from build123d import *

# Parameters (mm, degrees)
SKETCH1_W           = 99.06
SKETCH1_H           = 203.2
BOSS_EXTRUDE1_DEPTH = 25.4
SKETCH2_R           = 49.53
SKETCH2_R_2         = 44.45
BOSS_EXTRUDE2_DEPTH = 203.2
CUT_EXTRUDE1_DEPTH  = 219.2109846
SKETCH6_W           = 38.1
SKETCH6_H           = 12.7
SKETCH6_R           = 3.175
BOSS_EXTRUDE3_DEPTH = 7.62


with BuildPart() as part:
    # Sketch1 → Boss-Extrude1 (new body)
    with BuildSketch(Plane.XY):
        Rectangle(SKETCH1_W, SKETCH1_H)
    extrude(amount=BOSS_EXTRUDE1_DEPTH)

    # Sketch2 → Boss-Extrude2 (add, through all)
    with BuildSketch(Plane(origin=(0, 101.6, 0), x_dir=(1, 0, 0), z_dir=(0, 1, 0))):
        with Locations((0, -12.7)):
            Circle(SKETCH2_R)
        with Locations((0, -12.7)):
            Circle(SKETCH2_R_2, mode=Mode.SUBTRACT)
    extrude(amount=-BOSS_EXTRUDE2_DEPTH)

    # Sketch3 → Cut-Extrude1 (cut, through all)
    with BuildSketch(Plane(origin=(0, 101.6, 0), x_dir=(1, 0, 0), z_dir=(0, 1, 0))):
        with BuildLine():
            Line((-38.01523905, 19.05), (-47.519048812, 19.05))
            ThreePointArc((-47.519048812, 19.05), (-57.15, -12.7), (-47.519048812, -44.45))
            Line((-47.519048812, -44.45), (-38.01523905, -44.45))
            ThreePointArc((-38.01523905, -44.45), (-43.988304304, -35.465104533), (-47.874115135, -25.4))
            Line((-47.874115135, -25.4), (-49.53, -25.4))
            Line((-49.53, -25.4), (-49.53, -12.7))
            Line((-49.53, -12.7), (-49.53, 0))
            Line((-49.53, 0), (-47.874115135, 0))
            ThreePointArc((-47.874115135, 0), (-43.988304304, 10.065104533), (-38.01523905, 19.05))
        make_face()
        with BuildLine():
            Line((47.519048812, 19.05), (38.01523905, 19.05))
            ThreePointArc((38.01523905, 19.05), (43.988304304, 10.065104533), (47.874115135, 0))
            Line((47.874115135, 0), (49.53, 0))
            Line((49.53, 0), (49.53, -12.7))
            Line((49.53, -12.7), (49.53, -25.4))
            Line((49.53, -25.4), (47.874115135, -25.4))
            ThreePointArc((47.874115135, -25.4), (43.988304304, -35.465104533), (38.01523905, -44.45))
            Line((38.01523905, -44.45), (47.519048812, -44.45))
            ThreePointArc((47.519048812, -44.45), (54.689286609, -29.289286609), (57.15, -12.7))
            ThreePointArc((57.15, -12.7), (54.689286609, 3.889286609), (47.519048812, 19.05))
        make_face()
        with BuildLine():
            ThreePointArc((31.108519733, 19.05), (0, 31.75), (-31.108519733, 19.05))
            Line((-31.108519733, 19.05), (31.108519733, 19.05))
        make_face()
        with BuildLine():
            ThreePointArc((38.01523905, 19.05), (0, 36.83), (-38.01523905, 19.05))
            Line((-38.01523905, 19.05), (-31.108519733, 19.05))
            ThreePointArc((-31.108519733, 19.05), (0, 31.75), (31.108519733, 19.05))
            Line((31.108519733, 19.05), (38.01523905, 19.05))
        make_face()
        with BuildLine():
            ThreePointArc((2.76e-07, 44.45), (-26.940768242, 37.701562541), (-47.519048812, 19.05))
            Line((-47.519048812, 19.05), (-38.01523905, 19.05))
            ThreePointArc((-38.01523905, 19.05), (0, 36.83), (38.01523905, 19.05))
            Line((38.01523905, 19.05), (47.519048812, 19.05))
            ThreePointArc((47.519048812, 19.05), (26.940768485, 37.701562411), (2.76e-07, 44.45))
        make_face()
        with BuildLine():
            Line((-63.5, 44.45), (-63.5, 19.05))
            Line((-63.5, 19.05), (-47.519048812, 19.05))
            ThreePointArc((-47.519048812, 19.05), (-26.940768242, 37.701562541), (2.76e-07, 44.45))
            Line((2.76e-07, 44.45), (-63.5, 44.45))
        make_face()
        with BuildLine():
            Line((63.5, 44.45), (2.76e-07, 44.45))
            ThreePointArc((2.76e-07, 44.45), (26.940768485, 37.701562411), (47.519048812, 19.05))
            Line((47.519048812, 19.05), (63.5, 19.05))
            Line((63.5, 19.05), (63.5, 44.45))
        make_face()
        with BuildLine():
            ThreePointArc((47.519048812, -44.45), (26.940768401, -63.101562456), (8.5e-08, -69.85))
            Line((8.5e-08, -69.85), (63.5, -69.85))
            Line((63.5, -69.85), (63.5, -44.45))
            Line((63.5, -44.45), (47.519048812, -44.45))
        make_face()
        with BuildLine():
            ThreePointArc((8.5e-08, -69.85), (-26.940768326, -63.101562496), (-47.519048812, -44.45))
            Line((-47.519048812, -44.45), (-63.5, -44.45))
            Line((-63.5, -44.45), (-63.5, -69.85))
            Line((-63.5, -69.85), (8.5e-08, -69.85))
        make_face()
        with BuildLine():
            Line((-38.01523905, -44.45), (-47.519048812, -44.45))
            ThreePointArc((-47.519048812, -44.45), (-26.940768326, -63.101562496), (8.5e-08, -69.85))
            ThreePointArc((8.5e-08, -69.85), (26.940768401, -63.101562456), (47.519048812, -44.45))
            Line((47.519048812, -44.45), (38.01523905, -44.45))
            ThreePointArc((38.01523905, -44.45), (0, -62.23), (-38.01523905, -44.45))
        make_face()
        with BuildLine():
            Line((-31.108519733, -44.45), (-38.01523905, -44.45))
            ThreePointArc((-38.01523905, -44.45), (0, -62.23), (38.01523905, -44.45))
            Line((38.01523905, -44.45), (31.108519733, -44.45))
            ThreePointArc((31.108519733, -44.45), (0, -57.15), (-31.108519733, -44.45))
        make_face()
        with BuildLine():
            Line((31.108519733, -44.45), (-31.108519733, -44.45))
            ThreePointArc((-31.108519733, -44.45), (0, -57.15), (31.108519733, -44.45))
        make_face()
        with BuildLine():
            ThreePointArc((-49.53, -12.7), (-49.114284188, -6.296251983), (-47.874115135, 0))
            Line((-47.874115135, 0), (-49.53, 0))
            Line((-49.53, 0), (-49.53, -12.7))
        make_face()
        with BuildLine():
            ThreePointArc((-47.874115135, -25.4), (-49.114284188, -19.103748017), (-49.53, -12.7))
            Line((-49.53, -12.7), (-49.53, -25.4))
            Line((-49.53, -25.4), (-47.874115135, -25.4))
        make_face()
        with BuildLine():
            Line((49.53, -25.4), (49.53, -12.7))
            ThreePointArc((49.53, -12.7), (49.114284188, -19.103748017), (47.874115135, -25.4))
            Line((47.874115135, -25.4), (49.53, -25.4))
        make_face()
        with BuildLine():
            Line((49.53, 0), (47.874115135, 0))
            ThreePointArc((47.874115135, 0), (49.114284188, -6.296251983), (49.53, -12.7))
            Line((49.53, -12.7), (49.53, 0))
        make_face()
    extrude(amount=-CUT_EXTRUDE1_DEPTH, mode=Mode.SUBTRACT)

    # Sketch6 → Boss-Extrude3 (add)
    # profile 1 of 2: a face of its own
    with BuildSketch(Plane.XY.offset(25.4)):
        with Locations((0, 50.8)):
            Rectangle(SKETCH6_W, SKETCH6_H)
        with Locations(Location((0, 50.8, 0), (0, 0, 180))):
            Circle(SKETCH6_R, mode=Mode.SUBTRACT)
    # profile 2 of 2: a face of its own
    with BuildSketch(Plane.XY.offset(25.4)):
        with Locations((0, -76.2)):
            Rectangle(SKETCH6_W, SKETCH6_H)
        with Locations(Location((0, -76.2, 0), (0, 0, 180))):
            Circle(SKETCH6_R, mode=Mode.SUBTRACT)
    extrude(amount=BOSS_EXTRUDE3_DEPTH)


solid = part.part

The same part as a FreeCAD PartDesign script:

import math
import FreeCAD as App
import Part
import Sketcher
from FreeCAD import Vector
Q = App.Units.Quantity

doc = App.newDocument("Part")
body = doc.addObject("PartDesign::Body", "Body")

# Sketch on XY plane
sketch1 = doc.addObject("Sketcher::SketchObject", "Sketch")
body.addObject(sketch1)
sketch1.AttachmentSupport = (doc.XY_Plane, [""])
sketch1.MapMode = "FlatFace"
sketch1.addGeometry(Part.LineSegment(Vector(-50, 102, 0), Vector(-50, -102, 0)), False)
sketch1.addGeometry(Part.LineSegment(Vector(-50, -102, 0), Vector(50, -102, 0)), False)
sketch1.addGeometry(Part.LineSegment(Vector(50, -102, 0), Vector(50, 102, 0)), False)
sketch1.addGeometry(Part.LineSegment(Vector(50, 102, 0), Vector(-50, 102, 0)), False)
sketch1.addConstraint(Sketcher.Constraint("Coincident", 0, 2, 1, 1))
sketch1.addConstraint(Sketcher.Constraint("Coincident", 1, 2, 2, 1))
sketch1.addConstraint(Sketcher.Constraint("Coincident", 2, 2, 3, 1))
sketch1.addConstraint(Sketcher.Constraint("Coincident", 3, 2, 0, 1))
sketch1.addConstraint(Sketcher.Constraint("Vertical", 0))
sketch1.addConstraint(Sketcher.Constraint("Horizontal", 1))
sketch1.addConstraint(Sketcher.Constraint("Vertical", 2))
sketch1.addConstraint(Sketcher.Constraint("Horizontal", 3))
sketch1.addConstraint(Sketcher.Constraint("Symmetric", 0, 2, 2, 2, -1, 1))
sketch1.addConstraint(Sketcher.Constraint("DistanceY", 0, 2, 0, 1, Q("8 in")))
sketch1.addConstraint(Sketcher.Constraint("DistanceX", 1, 1, 1, 2, Q("3.9 in")))
pad1 = doc.addObject("PartDesign::Pad", "Pad")
body.addObject(pad1)
pad1.Profile = sketch1
pad1.Length = Q("1 in")

# Sketch on XZ plane
sketch2 = doc.addObject("Sketcher::SketchObject", "Sketch001")
body.addObject(sketch2)
sketch2.AttachmentSupport = (doc.XZ_Plane, [""])
sketch2.MapMode = "FlatFace"
sketch2.AttachmentOffset = App.Placement(Vector(0, 0, -4 * 25.4), App.Rotation())
sketch2.addGeometry(Part.Circle(Vector(0, 13, 0), Vector(0, 0, 1), 50), False)
sketch2.addGeometry(Part.Circle(Vector(0, 13, 0), Vector(0, 0, 1), 44), False)
sketch2.addConstraint(Sketcher.Constraint("Coincident", 1, 3, 0, 3))
sketch2.addConstraint(Sketcher.Constraint("PointOnObject", 0, 3, -2))
sketch2.addConstraint(Sketcher.Constraint("Diameter", 0, Q("3.9 in")))
sketch2.addConstraint(Sketcher.Constraint("Diameter", 1, Q("3.5 in")))
sketch2.addConstraint(Sketcher.Constraint("DistanceY", -1, 1, 0, 3, Q("0.5 in")))
pad2 = doc.addObject("PartDesign::Pad", "Pad001")
body.addObject(pad2)
pad2.Profile = sketch2
pad2.Type = "UpToLast"

# Sketch on XZ plane
sketch3 = doc.addObject("Sketcher::SketchObject", "Sketch002")
body.addObject(sketch3)
sketch3.AttachmentSupport = (doc.XZ_Plane, [""])
sketch3.MapMode = "FlatFace"
sketch3.AttachmentOffset = App.Placement(Vector(0, 0, -4 * 25.4), App.Rotation())
sketch3.addGeometry(Part.ArcOfCircle(Part.Circle(Vector(0, 13, 0), Vector(0, 0, 1), 57), math.radians(146), math.radians(214)), False)
sketch3.addGeometry(Part.LineSegment(Vector(-48, 44, 0), Vector(-64, 44, 0)), False)
sketch3.addGeometry(Part.LineSegment(Vector(-64, 44, 0), Vector(-64, 70, 0)), False)
sketch3.addGeometry(Part.LineSegment(Vector(-64, 70, 0), Vector(64, 70, 0)), False)
sketch3.addGeometry(Part.LineSegment(Vector(64, 70, 0), Vector(64, 44, 0)), False)
sketch3.addGeometry(Part.LineSegment(Vector(64, 44, 0), Vector(48, 44, 0)), False)
sketch3.addGeometry(Part.ArcOfCircle(Part.Circle(Vector(0, 13, 0), Vector(0, 0, 1), 57), math.radians(0), math.radians(34)), False)
sketch3.addGeometry(Part.ArcOfCircle(Part.Circle(Vector(0, 13, 0), Vector(0, 0, 1), 57), math.radians(-34), math.radians(0)), False)
sketch3.addGeometry(Part.LineSegment(Vector(48, -19, 0), Vector(64, -19, 0)), False)
sketch3.addGeometry(Part.LineSegment(Vector(64, -19, 0), Vector(64, -44, 0)), False)
sketch3.addGeometry(Part.LineSegment(Vector(64, -44, 0), Vector(-64, -44, 0)), False)
sketch3.addGeometry(Part.LineSegment(Vector(-64, -44, 0), Vector(-64, -19, 0)), False)
sketch3.addGeometry(Part.LineSegment(Vector(-64, -19, 0), Vector(-48, -19, 0)), False)
sketch3.addGeometry(Part.ArcOfCircle(Part.Circle(Vector(0, 13, 0), Vector(0, 0, 1), 50), math.radians(140), math.radians(165)), False)
sketch3.addGeometry(Part.ArcOfCircle(Part.Circle(Vector(0, 13, 0), Vector(0, 0, 1), 50), math.radians(165.14), math.radians(180)), False)
sketch3.addGeometry(Part.ArcOfCircle(Part.Circle(Vector(0, 13, 0), Vector(0, 0, 1), 50), math.radians(-180), math.radians(-165.14)), False)
sketch3.addGeometry(Part.ArcOfCircle(Part.Circle(Vector(0, 13, 0), Vector(0, 0, 1), 50), math.radians(-165), math.radians(-140)), False)
sketch3.addGeometry(Part.LineSegment(Vector(-38, -19, 0), Vector(38, -19, 0)), False)
sketch3.addGeometry(Part.ArcOfCircle(Part.Circle(Vector(0, 13, 0), Vector(0, 0, 1), 50), math.radians(-40), math.radians(-15)), False)
sketch3.addGeometry(Part.ArcOfCircle(Part.Circle(Vector(0, 13, 0), Vector(0, 0, 1), 50), math.radians(-14.86), math.radians(0)), False)
sketch3.addGeometry(Part.ArcOfCircle(Part.Circle(Vector(0, 13, 0), Vector(0, 0, 1), 50), math.radians(0), math.radians(14.86)), False)
sketch3.addGeometry(Part.ArcOfCircle(Part.Circle(Vector(0, 13, 0), Vector(0, 0, 1), 50), math.radians(15), math.radians(40)), False)
sketch3.addGeometry(Part.LineSegment(Vector(38, 44, 0), Vector(-38, 44, 0)), False)
sketch3.addConstraint(Sketcher.Constraint("Coincident", 0, 1, 1, 1))
sketch3.addConstraint(Sketcher.Constraint("Coincident", 1, 2, 2, 1))
sketch3.addConstraint(Sketcher.Constraint("Coincident", 2, 2, 3, 1))
sketch3.addConstraint(Sketcher.Constraint("Coincident", 3, 2, 4, 1))
sketch3.addConstraint(Sketcher.Constraint("Coincident", 4, 2, 5, 1))
sketch3.addConstraint(Sketcher.Constraint("Coincident", 5, 2, 6, 2))
sketch3.addConstraint(Sketcher.Constraint("Tangent", 6, 1, 7, 2))
sketch3.addConstraint(Sketcher.Constraint("Coincident", 7, 1, 8, 1))
sketch3.addConstraint(Sketcher.Constraint("Coincident", 8, 2, 9, 1))
sketch3.addConstraint(Sketcher.Constraint("Coincident", 9, 2, 10, 1))
sketch3.addConstraint(Sketcher.Constraint("Coincident", 10, 2, 11, 1))
sketch3.addConstraint(Sketcher.Constraint("Coincident", 11, 2, 12, 1))
sketch3.addConstraint(Sketcher.Constraint("Coincident", 12, 2, 0, 2))
sketch3.addConstraint(Sketcher.Constraint("Tangent", 13, 2, 14, 1))
sketch3.addConstraint(Sketcher.Constraint("Tangent", 14, 2, 15, 1))
sketch3.addConstraint(Sketcher.Constraint("Tangent", 15, 2, 16, 1))
sketch3.addConstraint(Sketcher.Constraint("Coincident", 16, 2, 17, 1))
sketch3.addConstraint(Sketcher.Constraint("Coincident", 17, 2, 18, 1))
sketch3.addConstraint(Sketcher.Constraint("Tangent", 18, 2, 19, 1))
sketch3.addConstraint(Sketcher.Constraint("Tangent", 19, 2, 20, 1))
sketch3.addConstraint(Sketcher.Constraint("Tangent", 20, 2, 21, 1))
sketch3.addConstraint(Sketcher.Constraint("Coincident", 21, 2, 22, 1))
sketch3.addConstraint(Sketcher.Constraint("Coincident", 22, 2, 13, 1))
sketch3.addConstraint(Sketcher.Constraint("Horizontal", 1))
sketch3.addConstraint(Sketcher.Constraint("Vertical", 2))
sketch3.addConstraint(Sketcher.Constraint("Horizontal", 3))
sketch3.addConstraint(Sketcher.Constraint("Vertical", 4))
sketch3.addConstraint(Sketcher.Constraint("Horizontal", 5))
sketch3.addConstraint(Sketcher.Constraint("Horizontal", 8))
sketch3.addConstraint(Sketcher.Constraint("Vertical", 9))
sketch3.addConstraint(Sketcher.Constraint("Horizontal", 10))
sketch3.addConstraint(Sketcher.Constraint("Vertical", 11))
sketch3.addConstraint(Sketcher.Constraint("Horizontal", 12))
sketch3.addConstraint(Sketcher.Constraint("Horizontal", 17))
sketch3.addConstraint(Sketcher.Constraint("Horizontal", 22))
sketch3.addConstraint(Sketcher.Constraint("Coincident", 6, 3, 0, 3))
sketch3.addConstraint(Sketcher.Constraint("Coincident", 13, 3, 0, 3))
sketch3.addConstraint(Sketcher.Constraint("Coincident", 15, 3, 0, 3))
sketch3.addConstraint(Sketcher.Constraint("Coincident", 18, 3, 0, 3))
sketch3.addConstraint(Sketcher.Constraint("Coincident", 20, 3, 0, 3))
sketch3.addConstraint(Sketcher.Constraint("Equal", 0, 6))
sketch3.addConstraint(Sketcher.Constraint("Equal", 6, 7))
sketch3.addConstraint(Sketcher.Constraint("Equal", 15, 16))
sketch3.addConstraint(Sketcher.Constraint("Equal", 16, 18))
sketch3.addConstraint(Sketcher.Constraint("Equal", 20, 21))
sketch3.addConstraint(Sketcher.Constraint("Symmetric", 1, 2, 9, 2, -1, 1))
sketch3.addConstraint(Sketcher.Constraint("Symmetric", 4, 2, 10, 2, -1, 1))
sketch3.addConstraint(Sketcher.Constraint("Symmetric", 15, 2, 18, 2, -1, 1))
sketch3.addConstraint(Sketcher.Constraint("Symmetric", 8, 2, 11, 2, -2))
sketch3.addConstraint(Sketcher.Constraint("Symmetric", 14, 2, 19, 2, -2))
sketch3.addConstraint(Sketcher.Constraint("Horizontal", 21, 3, 6, 1))
sketch3.addConstraint(Sketcher.Constraint("Horizontal", 6, 1, 14, 2))
sketch3.addConstraint(Sketcher.Constraint("Horizontal", 12, 2, 16, 2))
sketch3.addConstraint(Sketcher.Constraint("Horizontal", 13, 2, 20, 2))
sketch3.addConstraint(Sketcher.Constraint("Horizontal", 5, 2, 21, 2))
sketch3.addConstraint(Sketcher.Constraint("Vertical", 5, 2, 7, 1))
sketch3.addConstraint(Sketcher.Constraint("Vertical", 13, 2, 15, 2))
sketch3.addConstraint(Sketcher.Constraint("Equal", 4, 9))
sketch3.addConstraint(Sketcher.Constraint("DistanceX", 3, 1, 3, 2, Q("5 in")))
sketch3.addConstraint(Sketcher.Constraint("DistanceY", 2, 1, 2, 2, Q("1 in")))
sketch3.addConstraint(Sketcher.Constraint("Radius", 0, Q("2.25 in")))
sketch3.addConstraint(Sketcher.Constraint("Radius", 13, Q("1.95 in")))
sketch3.addConstraint(Sketcher.Constraint("DistanceY", 8, 2, 4, 2, Q("2.5 in")))
pocket1 = doc.addObject("PartDesign::Pocket", "Pocket")
body.addObject(pocket1)
pocket1.Profile = sketch3
pocket1.Type = "ThroughAll"
pocket1.Reversed = True

# Sketch on XY plane
sketch4 = doc.addObject("Sketcher::SketchObject", "Sketch003")
body.addObject(sketch4)
sketch4.AttachmentSupport = (doc.XY_Plane, [""])
sketch4.MapMode = "FlatFace"
sketch4.AttachmentOffset = App.Placement(Vector(0, 0, 1 * 25.4), App.Rotation())
sketch4.addGeometry(Part.LineSegment(Vector(-19.1, 57.1, 0), Vector(-19.1, 44.5, 0)), False)
sketch4.addGeometry(Part.LineSegment(Vector(-19.1, 44.5, 0), Vector(19.1, 44.5, 0)), False)
sketch4.addGeometry(Part.LineSegment(Vector(19.1, 44.5, 0), Vector(19.1, 57.1, 0)), False)
sketch4.addGeometry(Part.LineSegment(Vector(19.1, 57.1, 0), Vector(-19.1, 57.1, 0)), False)
sketch4.addGeometry(Part.Circle(Vector(0, 50.8, 0), Vector(0, 0, 1), 3.2), False)
sketch4.addGeometry(Part.LineSegment(Vector(-19.1, -69.8, 0), Vector(-19.1, -82.5, 0)), False)
sketch4.addGeometry(Part.LineSegment(Vector(-19.1, -82.5, 0), Vector(19.1, -82.5, 0)), False)
sketch4.addGeometry(Part.LineSegment(Vector(19.1, -82.5, 0), Vector(19.1, -69.8, 0)), False)
sketch4.addGeometry(Part.LineSegment(Vector(19.1, -69.8, 0), Vector(-19.1, -69.8, 0)), False)
sketch4.addGeometry(Part.Circle(Vector(0, -76.2, 0), Vector(0, 0, 1), 3.2), False)
sketch4.addConstraint(Sketcher.Constraint("Coincident", 0, 2, 1, 1))
sketch4.addConstraint(Sketcher.Constraint("Coincident", 1, 2, 2, 1))
sketch4.addConstraint(Sketcher.Constraint("Coincident", 2, 2, 3, 1))
sketch4.addConstraint(Sketcher.Constraint("Coincident", 3, 2, 0, 1))
sketch4.addConstraint(Sketcher.Constraint("Coincident", 5, 2, 6, 1))
sketch4.addConstraint(Sketcher.Constraint("Coincident", 6, 2, 7, 1))
sketch4.addConstraint(Sketcher.Constraint("Coincident", 7, 2, 8, 1))
sketch4.addConstraint(Sketcher.Constraint("Coincident", 8, 2, 5, 1))
sketch4.addConstraint(Sketcher.Constraint("Vertical", 0))
sketch4.addConstraint(Sketcher.Constraint("Horizontal", 1))
sketch4.addConstraint(Sketcher.Constraint("Vertical", 2))
sketch4.addConstraint(Sketcher.Constraint("Horizontal", 3))
sketch4.addConstraint(Sketcher.Constraint("Vertical", 5))
sketch4.addConstraint(Sketcher.Constraint("Horizontal", 6))
sketch4.addConstraint(Sketcher.Constraint("Vertical", 7))
sketch4.addConstraint(Sketcher.Constraint("Horizontal", 8))
sketch4.addConstraint(Sketcher.Constraint("Equal", 4, 9))
sketch4.addConstraint(Sketcher.Constraint("PointOnObject", 4, 3, -2))
sketch4.addConstraint(Sketcher.Constraint("PointOnObject", 9, 3, -2))
sketch4.addConstraint(Sketcher.Constraint("Vertical", 3, 2, 5, 2))
sketch4.addConstraint(Sketcher.Constraint("Vertical", 2, 2, 6, 2))
sketch4.addConstraint(Sketcher.Constraint("Equal", 2, 5))
sketch4.addConstraint(Sketcher.Constraint("Diameter", 4, Q("0.25 in")))
sketch4.addConstraint(Sketcher.Constraint("DistanceX", 1, 1, 1, 2, Q("1.5 in")))
sketch4.addConstraint(Sketcher.Constraint("DistanceY", 0, 2, 0, 1, Q("0.5 in")))
sketch4.addConstraint(Sketcher.Constraint("DistanceY", -1, 1, 4, 3, Q("2 in")))
sketch4.addConstraint(Sketcher.Constraint("DistanceY", 9, 3, -1, 1, Q("3 in")))
sketch4.addConstraint(Sketcher.Constraint("DistanceY", 5, 2, 0, 2, Q("5 in")))
sketch4.addConstraint(Sketcher.Constraint("DistanceX", 0, 2, -1, 1, Q("0.75 in")))
sketch4.addConstraint(Sketcher.Constraint("DistanceY", -1, 1, 0, 2, Q("1.75 in")))
pad3 = doc.addObject("PartDesign::Pad", "Pad002")
body.addObject(pad3)
pad3.Profile = sketch4
pad3.Length = Q("0.3 in")

doc.recompute()
